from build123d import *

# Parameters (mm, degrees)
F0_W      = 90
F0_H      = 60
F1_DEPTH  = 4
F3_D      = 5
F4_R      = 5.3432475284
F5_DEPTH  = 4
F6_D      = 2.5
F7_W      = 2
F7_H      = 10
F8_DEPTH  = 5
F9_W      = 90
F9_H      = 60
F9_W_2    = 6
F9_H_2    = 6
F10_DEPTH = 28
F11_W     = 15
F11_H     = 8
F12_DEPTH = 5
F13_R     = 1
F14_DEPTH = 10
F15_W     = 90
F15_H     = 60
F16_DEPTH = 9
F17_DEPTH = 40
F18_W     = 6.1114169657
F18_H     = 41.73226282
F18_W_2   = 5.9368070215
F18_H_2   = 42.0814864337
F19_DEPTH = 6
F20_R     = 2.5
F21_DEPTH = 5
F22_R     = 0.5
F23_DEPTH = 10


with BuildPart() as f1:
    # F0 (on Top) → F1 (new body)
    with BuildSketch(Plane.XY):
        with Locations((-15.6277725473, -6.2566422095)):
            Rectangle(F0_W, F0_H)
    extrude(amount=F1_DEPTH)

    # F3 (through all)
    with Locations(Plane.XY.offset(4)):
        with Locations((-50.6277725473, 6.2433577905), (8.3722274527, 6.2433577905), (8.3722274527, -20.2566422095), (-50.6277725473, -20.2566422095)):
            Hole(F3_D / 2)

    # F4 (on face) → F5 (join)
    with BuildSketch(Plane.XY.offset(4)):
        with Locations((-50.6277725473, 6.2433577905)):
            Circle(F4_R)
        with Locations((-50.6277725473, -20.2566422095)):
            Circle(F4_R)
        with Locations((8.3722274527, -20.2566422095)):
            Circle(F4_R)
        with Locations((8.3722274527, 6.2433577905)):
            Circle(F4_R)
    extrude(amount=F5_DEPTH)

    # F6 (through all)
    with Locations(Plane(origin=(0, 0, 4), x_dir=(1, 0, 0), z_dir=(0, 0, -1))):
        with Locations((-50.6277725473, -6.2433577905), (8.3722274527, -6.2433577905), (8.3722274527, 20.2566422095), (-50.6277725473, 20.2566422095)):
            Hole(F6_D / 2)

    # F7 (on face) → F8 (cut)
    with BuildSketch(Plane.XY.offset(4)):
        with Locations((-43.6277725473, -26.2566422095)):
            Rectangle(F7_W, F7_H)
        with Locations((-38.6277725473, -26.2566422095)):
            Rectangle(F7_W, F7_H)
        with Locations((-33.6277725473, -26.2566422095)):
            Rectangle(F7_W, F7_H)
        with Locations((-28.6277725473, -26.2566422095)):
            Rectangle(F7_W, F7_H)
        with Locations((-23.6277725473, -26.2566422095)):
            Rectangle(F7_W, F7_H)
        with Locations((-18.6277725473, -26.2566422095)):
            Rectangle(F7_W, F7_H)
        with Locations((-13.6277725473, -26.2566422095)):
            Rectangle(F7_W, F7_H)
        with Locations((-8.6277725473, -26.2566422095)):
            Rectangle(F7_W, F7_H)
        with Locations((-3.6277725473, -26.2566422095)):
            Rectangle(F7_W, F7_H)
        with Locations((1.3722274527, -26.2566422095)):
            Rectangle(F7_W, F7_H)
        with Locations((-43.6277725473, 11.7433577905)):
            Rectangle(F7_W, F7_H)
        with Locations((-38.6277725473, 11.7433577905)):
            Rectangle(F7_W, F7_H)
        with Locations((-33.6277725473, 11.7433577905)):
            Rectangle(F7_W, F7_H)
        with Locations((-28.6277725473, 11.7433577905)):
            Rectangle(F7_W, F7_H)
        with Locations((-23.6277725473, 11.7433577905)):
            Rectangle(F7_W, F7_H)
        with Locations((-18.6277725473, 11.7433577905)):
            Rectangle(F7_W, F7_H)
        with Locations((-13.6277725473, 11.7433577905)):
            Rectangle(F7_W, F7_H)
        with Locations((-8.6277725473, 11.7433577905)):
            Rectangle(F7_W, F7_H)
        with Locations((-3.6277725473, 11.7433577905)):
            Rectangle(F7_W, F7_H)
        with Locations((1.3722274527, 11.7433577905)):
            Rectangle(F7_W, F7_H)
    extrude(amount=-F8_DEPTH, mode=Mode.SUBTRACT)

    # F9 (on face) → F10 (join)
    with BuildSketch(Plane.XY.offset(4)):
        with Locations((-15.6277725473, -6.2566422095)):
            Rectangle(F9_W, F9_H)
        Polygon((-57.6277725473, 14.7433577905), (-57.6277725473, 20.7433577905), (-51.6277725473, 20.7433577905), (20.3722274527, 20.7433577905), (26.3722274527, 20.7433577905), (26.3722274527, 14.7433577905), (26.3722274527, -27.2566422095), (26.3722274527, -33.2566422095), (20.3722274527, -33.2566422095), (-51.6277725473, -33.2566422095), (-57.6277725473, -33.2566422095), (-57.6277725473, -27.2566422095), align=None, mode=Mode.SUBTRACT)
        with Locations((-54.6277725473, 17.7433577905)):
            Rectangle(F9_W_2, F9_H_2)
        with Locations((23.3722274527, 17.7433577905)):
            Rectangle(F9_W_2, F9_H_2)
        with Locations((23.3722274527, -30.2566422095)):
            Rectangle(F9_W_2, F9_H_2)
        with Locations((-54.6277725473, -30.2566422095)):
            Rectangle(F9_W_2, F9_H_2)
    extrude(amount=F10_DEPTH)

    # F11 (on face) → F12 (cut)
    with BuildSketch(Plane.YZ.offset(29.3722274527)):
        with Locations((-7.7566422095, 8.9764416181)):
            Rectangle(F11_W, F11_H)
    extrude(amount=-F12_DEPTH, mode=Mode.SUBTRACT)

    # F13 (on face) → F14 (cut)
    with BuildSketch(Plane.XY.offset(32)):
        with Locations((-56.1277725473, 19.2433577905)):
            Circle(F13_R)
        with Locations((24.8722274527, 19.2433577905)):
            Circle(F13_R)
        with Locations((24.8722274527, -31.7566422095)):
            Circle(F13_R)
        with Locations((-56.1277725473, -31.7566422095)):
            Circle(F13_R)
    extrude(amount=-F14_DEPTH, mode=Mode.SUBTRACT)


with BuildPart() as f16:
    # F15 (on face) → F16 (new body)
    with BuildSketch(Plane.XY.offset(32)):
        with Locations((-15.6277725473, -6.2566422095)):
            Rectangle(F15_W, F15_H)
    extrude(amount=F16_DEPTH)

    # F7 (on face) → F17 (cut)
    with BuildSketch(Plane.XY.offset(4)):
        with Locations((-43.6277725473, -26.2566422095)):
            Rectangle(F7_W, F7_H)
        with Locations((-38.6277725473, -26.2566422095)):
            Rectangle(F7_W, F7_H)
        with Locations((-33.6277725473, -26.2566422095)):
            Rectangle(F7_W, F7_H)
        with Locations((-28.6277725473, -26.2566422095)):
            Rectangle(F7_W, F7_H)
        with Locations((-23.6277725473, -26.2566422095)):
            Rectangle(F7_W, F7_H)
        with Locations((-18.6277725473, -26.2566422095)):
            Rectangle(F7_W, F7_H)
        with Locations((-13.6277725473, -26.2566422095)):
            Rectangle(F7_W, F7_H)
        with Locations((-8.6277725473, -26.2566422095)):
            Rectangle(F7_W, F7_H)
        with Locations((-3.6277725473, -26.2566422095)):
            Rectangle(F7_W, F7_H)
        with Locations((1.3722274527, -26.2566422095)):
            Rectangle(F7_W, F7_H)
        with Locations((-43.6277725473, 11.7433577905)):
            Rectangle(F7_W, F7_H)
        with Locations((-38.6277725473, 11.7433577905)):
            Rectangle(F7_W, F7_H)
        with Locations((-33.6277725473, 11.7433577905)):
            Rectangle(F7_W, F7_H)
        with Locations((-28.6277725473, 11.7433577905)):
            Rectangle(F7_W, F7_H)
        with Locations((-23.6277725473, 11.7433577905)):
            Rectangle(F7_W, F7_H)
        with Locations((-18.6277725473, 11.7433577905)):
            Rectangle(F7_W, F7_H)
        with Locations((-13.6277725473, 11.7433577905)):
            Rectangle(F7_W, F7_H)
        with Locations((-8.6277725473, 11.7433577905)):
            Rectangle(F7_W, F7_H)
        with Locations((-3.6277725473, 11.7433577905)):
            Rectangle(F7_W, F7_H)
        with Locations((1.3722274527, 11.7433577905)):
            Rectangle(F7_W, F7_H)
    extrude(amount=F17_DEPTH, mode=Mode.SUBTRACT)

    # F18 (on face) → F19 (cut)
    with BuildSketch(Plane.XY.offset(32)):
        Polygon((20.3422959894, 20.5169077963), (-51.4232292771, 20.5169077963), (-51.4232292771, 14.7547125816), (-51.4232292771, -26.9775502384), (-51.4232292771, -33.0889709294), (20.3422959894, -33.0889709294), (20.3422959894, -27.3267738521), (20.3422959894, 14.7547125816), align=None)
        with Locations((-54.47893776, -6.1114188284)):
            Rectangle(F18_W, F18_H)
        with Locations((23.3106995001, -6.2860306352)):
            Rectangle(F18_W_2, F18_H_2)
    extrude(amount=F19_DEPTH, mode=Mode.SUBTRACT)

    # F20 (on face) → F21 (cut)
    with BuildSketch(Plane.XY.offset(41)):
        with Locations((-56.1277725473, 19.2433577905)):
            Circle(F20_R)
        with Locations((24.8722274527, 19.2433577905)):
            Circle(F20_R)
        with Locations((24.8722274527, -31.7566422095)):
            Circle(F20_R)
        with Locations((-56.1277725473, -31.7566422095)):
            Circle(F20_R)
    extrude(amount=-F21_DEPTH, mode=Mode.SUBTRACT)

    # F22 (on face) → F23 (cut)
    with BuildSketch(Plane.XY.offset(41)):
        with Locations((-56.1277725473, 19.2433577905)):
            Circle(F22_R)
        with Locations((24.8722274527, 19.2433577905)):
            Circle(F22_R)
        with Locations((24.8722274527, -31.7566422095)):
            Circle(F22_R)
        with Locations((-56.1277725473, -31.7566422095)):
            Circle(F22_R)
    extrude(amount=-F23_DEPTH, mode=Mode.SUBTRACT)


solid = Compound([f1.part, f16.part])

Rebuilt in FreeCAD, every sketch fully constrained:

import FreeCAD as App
import Part
import Sketcher
from FreeCAD import Vector


def add_polygon(sketch, points):
    """Adds a closed chain of lines whose ends are joined by coincident constraints."""
    first, n = sketch.GeometryCount, len(points)
    for a, b in zip(points, points[1:] + points[:1]):
        sketch.addGeometry(Part.LineSegment(App.Vector(*a, 0), App.Vector(*b, 0)), False)
    for i in range(n):
        sketch.addConstraint(Sketcher.Constraint("Coincident", first + i, 2, first + (i + 1) % n, 1))

doc = App.newDocument("Part")
body = doc.addObject("PartDesign::Body", "Body")

# Sketch on XY plane
sketch1 = body.newObject("Sketcher::SketchObject", "Sketch")
sketch1.AttachmentSupport = (doc.getObject("XY_Plane"), [""])
sketch1.MapMode = "FlatFace"
add_polygon(sketch1, [(-61, 24), (-61, -36), (29, -36), (29, 24)])  # lines 0-3
sketch1.addConstraint(Sketcher.Constraint("Vertical", 0))
sketch1.addConstraint(Sketcher.Constraint("Horizontal", 1))
sketch1.addConstraint(Sketcher.Constraint("Vertical", 2))
sketch1.addConstraint(Sketcher.Constraint("Horizontal", 3))
sketch1.addConstraint(Sketcher.Constraint("DistanceX", 1, 1, 1, 2, 90.0))
sketch1.addConstraint(Sketcher.Constraint("DistanceY", 0, 2, 0, 1, 60.0))
sketch1.addConstraint(Sketcher.Constraint("DistanceX", 0, 2, -1, 1, 60.627773))
sketch1.addConstraint(Sketcher.Constraint("DistanceY", 0, 2, -1, 1, 36.256642))
pad1 = body.newObject("PartDesign::Pad", "Pad")
pad1.Profile = sketch1
pad1.Length = 4

# Sketch on XY plane
sketch2 = body.newObject("Sketcher::SketchObject", "Sketch001")
sketch2.AttachmentSupport = (doc.getObject("XY_Plane"), [""])
sketch2.MapMode = "FlatFace"
sketch2.AttachmentOffset = App.Placement(Vector(0, 0, 4), App.Rotation())
sketch2.addGeometry(Part.Circle(Vector(-50.6, 6.2, 0), Vector(0, 0, 1), 2.5), False)
sketch2.addGeometry(Part.Circle(Vector(8.4, 6.2, 0), Vector(0, 0, 1), 2.5), False)
sketch2.addGeometry(Part.Circle(Vector(8.4, -20.3, 0), Vector(0, 0, 1), 2.5), False)
sketch2.addGeometry(Part.Circle(Vector(-50.6, -20.3, 0), Vector(0, 0, 1), 2.5), False)
sketch2.addConstraint(Sketcher.Constraint("Equal", 0, 1))
sketch2.addConstraint(Sketcher.Constraint("Equal", 1, 2))
sketch2.addConstraint(Sketcher.Constraint("Equal", 2, 3))
sketch2.addConstraint(Sketcher.Constraint("Horizontal", 0, 3, 1, 3))
sketch2.addConstraint(Sketcher.Constraint("Horizontal", 2, 3, 3, 3))
sketch2.addConstraint(Sketcher.Constraint("Vertical", 1, 3, 2, 3))
sketch2.addConstraint(Sketcher.Constraint("Vertical", 0, 3, 3, 3))
sketch2.addConstraint(Sketcher.Constraint("Diameter", 0, 5.0))
sketch2.addConstraint(Sketcher.Constraint("DistanceX", 0, 3, 1, 3, 59.0))
sketch2.addConstraint(Sketcher.Constraint("DistanceY", 2, 3, 1, 3, 26.5))
sketch2.addConstraint(Sketcher.Constraint("DistanceX", 0, 3, -1, 1, 50.627773))
sketch2.addConstraint(Sketcher.Constraint("DistanceY", -1, 1, 0, 3, 6.243358))
doc.recompute()
hole = body.newObject("PartDesign::Hole", "Hole")
hole.Profile = sketch2
hole.ThreadType = "None"
hole.Diameter = 5
hole.DepthType = "ThroughAll"

# Sketch on XY plane
sketch3 = body.newObject("Sketcher::SketchObject", "Sketch002")
sketch3.AttachmentSupport = (doc.getObject("XY_Plane"), [""])
sketch3.MapMode = "FlatFace"
sketch3.AttachmentOffset = App.Placement(Vector(0, 0, 4), App.Rotation())
sketch3.addGeometry(Part.Circle(Vector(-51, 6, 0), Vector(0, 0, 1), 5), False)
sketch3.addGeometry(Part.Circle(Vector(-51, -20, 0), Vector(0, 0, 1), 5), False)
sketch3.addGeometry(Part.Circle(Vector(8, -20, 0), Vector(0, 0, 1), 5), False)
sketch3.addGeometry(Part.Circle(Vector(8, 6, 0), Vector(0, 0, 1), 5), False)
sketch3.addConstraint(Sketcher.Constraint("Equal", 0, 1))
sketch3.addConstraint(Sketcher.Constraint("Equal", 1, 2))
sketch3.addConstraint(Sketcher.Constraint("Equal", 2, 3))
sketch3.addConstraint(Sketcher.Constraint("Horizontal", 1, 3, 2, 3))
sketch3.addConstraint(Sketcher.Constraint("Horizontal", 0, 3, 3, 3))
sketch3.addConstraint(Sketcher.Constraint("Vertical", 0, 3, 1, 3))
sketch3.addConstraint(Sketcher.Constraint("Vertical", 2, 3, 3, 3))
sketch3.addConstraint(Sketcher.Constraint("DistanceX", 1, 3, 2, 3, 59.0))
sketch3.addConstraint(Sketcher.Constraint("DistanceY", 1, 3, 0, 3, 26.5))
sketch3.addConstraint(Sketcher.Constraint("Diameter", 0, 10.686495))
sketch3.addConstraint(Sketcher.Constraint("DistanceX", 0, 3, -1, 1, 50.627773))
sketch3.addConstraint(Sketcher.Constraint("DistanceY", -1, 1, 0, 3, 6.243358))
pad2 = body.newObject("PartDesign::Pad", "Pad001")
pad2.Profile = sketch3
pad2.Length = 4

# Sketch on XY plane
sketch4 = body.newObject("Sketcher::SketchObject", "Sketch003")
sketch4.AttachmentSupport = (doc.getObject("XY_Plane"), [""])
sketch4.MapMode = "FlatFace"
sketch4.AttachmentOffset = App.Placement(Vector(0, 0, 4), App.Rotation())
sketch4.addGeometry(Part.Circle(Vector(-50.6, 6.2, 0), Vector(0, 0, 1), 1.2), False)
sketch4.addGeometry(Part.Circle(Vector(8.4, 6.2, 0), Vector(0, 0, 1), 1.2), False)
sketch4.addGeometry(Part.Circle(Vector(8.4, -20.3, 0), Vector(0, 0, 1), 1.2), False)
sketch4.addGeometry(Part.Circle(Vector(-50.6, -20.3, 0), Vector(0, 0, 1), 1.2), False)
sketch4.addConstraint(Sketcher.Constraint("Equal", 0, 1))
sketch4.addConstraint(Sketcher.Constraint("Equal", 1, 2))
sketch4.addConstraint(Sketcher.Constraint("Equal", 2, 3))
sketch4.addConstraint(Sketcher.Constraint("Horizontal", 0, 3, 1, 3))
sketch4.addConstraint(Sketcher.Constraint("Horizontal", 2, 3, 3, 3))
sketch4.addConstraint(Sketcher.Constraint("Vertical", 1, 3, 2, 3))
sketch4.addConstraint(Sketcher.Constraint("Vertical", 0, 3, 3, 3))
sketch4.addConstraint(Sketcher.Constraint("Diameter", 0, 2.5))
sketch4.addConstraint(Sketcher.Constraint("DistanceX", 0, 3, 1, 3, 59.0))
sketch4.addConstraint(Sketcher.Constraint("DistanceY", 2, 3, 1, 3, 26.5))
sketch4.addConstraint(Sketcher.Constraint("DistanceX", 0, 3, -1, 1, 50.627773))
sketch4.addConstraint(Sketcher.Constraint("DistanceY", -1, 1, 0, 3, 6.243358))
doc.recompute()
hole2 = body.newObject("PartDesign::Hole", "Hole001")
hole2.Profile = sketch4
hole2.ThreadType = "None"
hole2.Diameter = 2.5
hole2.DepthType = "ThroughAll"
hole2.Reversed = True

# Sketch on XY plane
sketch5 = body.newObject("Sketcher::SketchObject", "Sketch004")
sketch5.AttachmentSupport = (doc.getObject("XY_Plane"), [""])
sketch5.MapMode = "FlatFace"
sketch5.AttachmentOffset = App.Placement(Vector(0, 0, 4), App.Rotation())
add_polygon(sketch5, [(-44.6, -21.3), (-44.6, -31.3), (-42.6, -31.3), (-42.6, -21.3)])  # lines 0-3
add_polygon(sketch5, [(-39.6, -21.3), (-39.6, -31.3), (-37.6, -31.3), (-37.6, -21.3)])  # lines 4-7
add_polygon(sketch5, [(-34.6, -21.3), (-34.6, -31.3), (-32.6, -31.3), (-32.6, -21.3)])  # lines 8-11
add_polygon(sketch5, [(-29.6, -21.3), (-29.6, -31.3), (-27.6, -31.3), (-27.6, -21.3)])  # lines 12-15
add_polygon(sketch5, [(-24.6, -21.3), (-24.6, -31.3), (-22.6, -31.3), (-22.6, -21.3)])  # lines 16-19
add_polygon(sketch5, [(-19.6, -21.3), (-19.6, -31.3), (-17.6, -31.3), (-17.6, -21.3)])  # lines 20-23
add_polygon(sketch5, [(-14.6, -21.3), (-14.6, -31.3), (-12.6, -31.3), (-12.6, -21.3)])  # lines 24-27
add_polygon(sketch5, [(-9.6, -21.3), (-9.6, -31.3), (-7.6, -31.3), (-7.6, -21.3)])  # lines 28-31
add_polygon(sketch5, [(-4.6, -21.3), (-4.6, -31.3), (-2.6, -31.3), (-2.6, -21.3)])  # lines 32-35
add_polygon(sketch5, [(0.4, -21.3), (0.4, -31.3), (2.4, -31.3), (2.4, -21.3)])  # lines 36-39
add_polygon(sketch5, [(-44.6, 16.7), (-44.6, 6.7), (-42.6, 6.7), (-42.6, 16.7)])  # lines 40-43
add_polygon(sketch5, [(-39.6, 16.7), (-39.6, 6.7), (-37.6, 6.7), (-37.6, 16.7)])  # lines 44-47
add_polygon(sketch5, [(-34.6, 16.7), (-34.6, 6.7), (-32.6, 6.7), (-32.6, 16.7)])  # lines 48-51
add_polygon(sketch5, [(-29.6, 16.7), (-29.6, 6.7), (-27.6, 6.7), (-27.6, 16.7)])  # lines 52-55
add_polygon(sketch5, [(-24.6, 16.7), (-24.6, 6.7), (-22.6, 6.7), (-22.6, 16.7)])  # lines 56-59
add_polygon(sketch5, [(-19.6, 16.7), (-19.6, 6.7), (-17.6, 6.7), (-17.6, 16.7)])  # lines 60-63
add_polygon(sketch5, [(-14.6, 16.7), (-14.6, 6.7), (-12.6, 6.7), (-12.6, 16.7)])  # lines 64-67
add_polygon(sketch5, [(-9.6, 16.7), (-9.6, 6.7), (-7.6, 6.7), (-7.6, 16.7)])  # lines 68-71
add_polygon(sketch5, [(-4.6, 16.7), (-4.6, 6.7), (-2.6, 6.7), (-2.6, 16.7)])  # lines 72-75
add_polygon(sketch5, [(0.4, 16.7), (0.4, 6.7), (2.4, 6.7), (2.4, 16.7)])  # lines 76-79
sketch5.addConstraint(Sketcher.Constraint("Vertical", 0))
sketch5.addConstraint(Sketcher.Constraint("Horizontal", 1))
sketch5.addConstraint(Sketcher.Constraint("Vertical", 2))
sketch5.addConstraint(Sketcher.Constraint("Horizontal", 3))
sketch5.addConstraint(Sketcher.Constraint("Vertical", 4))
sketch5.addConstraint(Sketcher.Constraint("Horizontal", 5))
sketch5.addConstraint(Sketcher.Constraint("Vertical", 6))
sketch5.addConstraint(Sketcher.Constraint("Horizontal", 7))
sketch5.addConstraint(Sketcher.Constraint("Vertical", 8))
sketch5.addConstraint(Sketcher.Constraint("Horizontal", 9))
sketch5.addConstraint(Sketcher.Constraint("Vertical", 10))
sketch5.addConstraint(Sketcher.Constraint("Horizontal", 11))
sketch5.addConstraint(Sketcher.Constraint("Vertical", 12))
sketch5.addConstraint(Sketcher.Constraint("Horizontal", 13))
sketch5.addConstraint(Sketcher.Constraint("Vertical", 14))
sketch5.addConstraint(Sketcher.Constraint("Horizontal", 15))
sketch5.addConstraint(Sketcher.Constraint("Vertical", 16))
sketch5.addConstraint(Sketcher.Constraint("Horizontal", 17))
sketch5.addConstraint(Sketcher.Constraint("Vertical", 18))
sketch5.addConstraint(Sketcher.Constraint("Horizontal", 19))
sketch5.addConstraint(Sketcher.Constraint("Vertical", 20))
sketch5.addConstraint(Sketcher.Constraint("Horizontal", 21))
sketch5.addConstraint(Sketcher.Constraint("Vertical", 22))
sketch5.addConstraint(Sketcher.Constraint("Horizontal", 23))
sketch5.addConstraint(Sketcher.Constraint("Vertical", 24))
sketch5.addConstraint(Sketcher.Constraint("Horizontal", 25))
sketch5.addConstraint(Sketcher.Constraint("Vertical", 26))
sketch5.addConstraint(Sketcher.Constraint("Horizontal", 27))
sketch5.addConstraint(Sketcher.Constraint("Vertical", 28))
sketch5.addConstraint(Sketcher.Constraint("Horizontal", 29))
sketch5.addConstraint(Sketcher.Constraint("Vertical", 30))
sketch5.addConstraint(Sketcher.Constraint("Horizontal", 31))
sketch5.addConstraint(Sketcher.Constraint("Vertical", 32))
sketch5.addConstraint(Sketcher.Constraint("Horizontal", 33))
sketch5.addConstraint(Sketcher.Constraint("Vertical", 34))
sketch5.addConstraint(Sketcher.Constraint("Horizontal", 35))
sketch5.addConstraint(Sketcher.Constraint("Vertical", 36))
sketch5.addConstraint(Sketcher.Constraint("Horizontal", 37))
sketch5.addConstraint(Sketcher.Constraint("Vertical", 38))
sketch5.addConstraint(Sketcher.Constraint("Horizontal", 39))
sketch5.addConstraint(Sketcher.Constraint("Vertical", 40))
sketch5.addConstraint(Sketcher.Constraint("Horizontal", 41))
sketch5.addConstraint(Sketcher.Constraint("Vertical", 42))
sketch5.addConstraint(Sketcher.Constraint("Horizontal", 43))
sketch5.addConstraint(Sketcher.Constraint("Vertical", 44))
sketch5.addConstraint(Sketcher.Constraint("Horizontal", 45))
sketch5.addConstraint(Sketcher.Constraint("Vertical", 46))
sketch5.addConstraint(Sketcher.Constraint("Horizontal", 47))
sketch5.addConstraint(Sketcher.Constraint("Vertical", 48))
sketch5.addConstraint(Sketcher.Constraint("Horizontal", 49))
sketch5.addConstraint(Sketcher.Constraint("Vertical", 50))
sketch5.addConstraint(Sketcher.Constraint("Horizontal", 51))
sketch5.addConstraint(Sketcher.Constraint("Vertical", 52))
sketch5.addConstraint(Sketcher.Constraint("Horizontal", 53))
sketch5.addConstraint(Sketcher.Constraint("Vertical", 54))
sketch5.addConstraint(Sketcher.Constraint("Horizontal", 55))
sketch5.addConstraint(Sketcher.Constraint("Vertical", 56))
sketch5.addConstraint(Sketcher.Constraint("Horizontal", 57))
sketch5.addConstraint(Sketcher.Constraint("Vertical", 58))
sketch5.addConstraint(Sketcher.Constraint("Horizontal", 59))
sketch5.addConstraint(Sketcher.Constraint("Vertical", 60))
sketch5.addConstraint(Sketcher.Constraint("Horizontal", 61))
sketch5.addConstraint(Sketcher.Constraint("Vertical", 62))
sketch5.addConstraint(Sketcher.Constraint("Horizontal", 63))
sketch5.addConstraint(Sketcher.Constraint("Vertical", 64))
sketch5.addConstraint(Sketcher.Constraint("Horizontal", 65))
sketch5.addConstraint(Sketcher.Constraint("Vertical", 66))
sketch5.addConstraint(Sketcher.Constraint("Horizontal", 67))
sketch5.addConstraint(Sketcher.Constraint("Vertical", 68))
sketch5.addConstraint(Sketcher.Constraint("Horizontal", 69))
sketch5.addConstraint(Sketcher.Constraint("Vertical", 70))
sketch5.addConstraint(Sketcher.Constraint("Horizontal", 71))
sketch5.addConstraint(Sketcher.Constraint("Vertical", 72))
sketch5.addConstraint(Sketcher.Constraint("Horizontal", 73))
sketch5.addConstraint(Sketcher.Constraint("Vertical", 74))
sketch5.addConstraint(Sketcher.Constraint("Horizontal", 75))
sketch5.addConstraint(Sketcher.Constraint("Vertical", 76))
sketch5.addConstraint(Sketcher.Constraint("Horizontal", 77))
sketch5.addConstraint(Sketcher.Constraint("Vertical", 78))
sketch5.addConstraint(Sketcher.Constraint("Horizontal", 79))
sketch5.addConstraint(Sketcher.Constraint("Horizontal", 1, 2, 4, 2))
sketch5.addConstraint(Sketcher.Constraint("Horizontal", 3, 2, 6, 2))
sketch5.addConstraint(Sketcher.Constraint("Horizontal", 5, 2, 8, 2))
sketch5.addConstraint(Sketcher.Constraint("Horizontal", 7, 2, 10, 2))
sketch5.addConstraint(Sketcher.Constraint("Horizontal", 9, 2, 12, 2))
sketch5.addConstraint(Sketcher.Constraint("Horizontal", 11, 2, 14, 2))
sketch5.addConstraint(Sketcher.Constraint("Horizontal", 13, 2, 16, 2))
sketch5.addConstraint(Sketcher.Constraint("Horizontal", 15, 2, 18, 2))
sketch5.addConstraint(Sketcher.Constraint("Horizontal", 17, 2, 20, 2))
sketch5.addConstraint(Sketcher.Constraint("Horizontal", 19, 2, 22, 2))
sketch5.addConstraint(Sketcher.Constraint("Horizontal", 21, 2, 24, 2))
sketch5.addConstraint(Sketcher.Constraint("Horizontal", 23, 2, 26, 2))
sketch5.addConstraint(Sketcher.Constraint("Horizontal", 25, 2, 28, 2))
sketch5.addConstraint(Sketcher.Constraint("Horizontal", 27, 2, 30, 2))
sketch5.addConstraint(Sketcher.Constraint("Horizontal", 29, 2, 32, 2))
sketch5.addConstraint(Sketcher.Constraint("Horizontal", 31, 2, 34, 2))
sketch5.addConstraint(Sketcher.Constraint("Horizontal", 33, 2, 36, 2))
sketch5.addConstraint(Sketcher.Constraint("Horizontal", 35, 2, 38, 2))
sketch5.addConstraint(Sketcher.Constraint("Horizontal", 41, 2, 44, 2))
sketch5.addConstraint(Sketcher.Constraint("Horizontal", 43, 2, 46, 2))
sketch5.addConstraint(Sketcher.Constraint("Horizontal", 45, 2, 48, 2))
sketch5.addConstraint(Sketcher.Constraint("Horizontal", 47, 2, 50, 2))
sketch5.addConstraint(Sketcher.Constraint("Horizontal", 49, 2, 52, 2))
sketch5.addConstraint(Sketcher.Constraint("Horizontal", 51, 2, 54, 2))
sketch5.addConstraint(Sketcher.Constraint("Horizontal", 53, 2, 56, 2))
sketch5.addConstraint(Sketcher.Constraint("Horizontal", 55, 2, 58, 2))
sketch5.addConstraint(Sketcher.Constraint("Horizontal", 57, 2, 60, 2))
sketch5.addConstraint(Sketcher.Constraint("Horizontal", 59, 2, 62, 2))
sketch5.addConstraint(Sketcher.Constraint("Horizontal", 61, 2, 64, 2))
sketch5.addConstraint(Sketcher.Constraint("Horizontal", 63, 2, 66, 2))
sketch5.addConstraint(Sketcher.Constraint("Horizontal", 65, 2, 68, 2))
sketch5.addConstraint(Sketcher.Constraint("Horizontal", 67, 2, 70, 2))
sketch5.addConstraint(Sketcher.Constraint("Horizontal", 69, 2, 72, 2))
sketch5.addConstraint(Sketcher.Constraint("Horizontal", 71, 2, 74, 2))
sketch5.addConstraint(Sketcher.Constraint("Horizontal", 73, 2, 76, 2))
sketch5.addConstraint(Sketcher.Constraint("Horizontal", 75, 2, 78, 2))
sketch5.addConstraint(Sketcher.Constraint("Vertical", 3, 2, 40, 2))
sketch5.addConstraint(Sketcher.Constraint("Vertical", 2, 2, 41, 2))
sketch5.addConstraint(Sketcher.Constraint("Vertical", 7, 2, 44, 2))
sketch5.addConstraint(Sketcher.Constraint("Vertical", 6, 2, 45, 2))
sketch5.addConstraint(Sketcher.Constraint("Vertical", 11, 2, 48, 2))
sketch5.addConstraint(Sketcher.Constraint("Vertical", 10, 2, 49, 2))
sketch5.addConstraint(Sketcher.Constraint("Vertical", 15, 2, 52, 2))
sketch5.addConstraint(Sketcher.Constraint("Vertical", 14, 2, 53, 2))
sketch5.addConstraint(Sketcher.Constraint("Vertical", 19, 2, 56, 2))
sketch5.addConstraint(Sketcher.Constraint("Vertical", 18, 2, 57, 2))
sketch5.addConstraint(Sketcher.Constraint("Vertical", 23, 2, 60, 2))
sketch5.addConstraint(Sketcher.Constraint("Vertical", 22, 2, 61, 2))
sketch5.addConstraint(Sketcher.Constraint("Vertical", 27, 2, 64, 2))
sketch5.addConstraint(Sketcher.Constraint("Vertical", 26, 2, 65, 2))
sketch5.addConstraint(Sketcher.Constraint("Vertical", 31, 2, 68, 2))
sketch5.addConstraint(Sketcher.Constraint("Vertical", 30, 2, 69, 2))
sketch5.addConstraint(Sketcher.Constraint("Vertical", 35, 2, 72, 2))
sketch5.addConstraint(Sketcher.Constraint("Vertical", 34, 2, 73, 2))
sketch5.addConstraint(Sketcher.Constraint("Vertical", 39, 2, 76, 2))
sketch5.addConstraint(Sketcher.Constraint("Vertical", 38, 2, 77, 2))
sketch5.addConstraint(Sketcher.Constraint("Equal", 3, 5))
sketch5.addConstraint(Sketcher.Constraint("Equal", 7, 9))
sketch5.addConstraint(Sketcher.Constraint("Equal", 11, 13))
sketch5.addConstraint(Sketcher.Constraint("Equal", 15, 17))
sketch5.addConstraint(Sketcher.Constraint("Equal", 19, 21))
sketch5.addConstraint(Sketcher.Constraint("Equal", 23, 25))
sketch5.addConstraint(Sketcher.Constraint("Equal", 27, 29))
sketch5.addConstraint(Sketcher.Constraint("Equal", 31, 33))
sketch5.addConstraint(Sketcher.Constraint("Equal", 35, 37))
sketch5.addConstraint(Sketcher.Constraint("Equal", 38, 40))
sketch5.addConstraint(Sketcher.Constraint("DistanceX", 1, 1, 1, 2, 2.0))
sketch5.addConstraint(Sketcher.Constraint("DistanceY", 0, 2, 0, 1, 10.0))
sketch5.addConstraint(Sketcher.Constraint("DistanceX", 0, 2, -1, 1, 44.627773))
sketch5.addConstraint(Sketcher.Constraint("DistanceY", 0, 2, -1, 1, 31.256642))
sketch5.addConstraint(Sketcher.Constraint("DistanceX", 4, 2, -1, 1, 39.627773))
sketch5.addConstraint(Sketcher.Constraint("DistanceX", 8, 2, -1, 1, 34.627773))
sketch5.addConstraint(Sketcher.Constraint("DistanceX", 12, 2, -1, 1, 29.627773))
sketch5.addConstraint(Sketcher.Constraint("DistanceX", 16, 2, -1, 1, 24.627773))
sketch5.addConstraint(Sketcher.Constraint("DistanceX", 20, 2, -1, 1, 19.627773))
sketch5.addConstraint(Sketcher.Constraint("DistanceX", 24, 2, -1, 1, 14.627773))
sketch5.addConstraint(Sketcher.Constraint("DistanceX", 28, 2, -1, 1, 9.627773))
sketch5.addConstraint(Sketcher.Constraint("DistanceX", 32, 2, -1, 1, 4.627773))
sketch5.addConstraint(Sketcher.Constraint("DistanceX", -1, 1, 36, 2, 0.372227))
sketch5.addConstraint(Sketcher.Constraint("DistanceY", -1, 1, 40, 2, 6.743358))
pocket1 = body.newObject("PartDesign::Pocket", "Pocket")
pocket1.Profile = sketch5
pocket1.Length = 5

# Sketch on XY plane
sketch6 = body.newObject("Sketcher::SketchObject", "Sketch005")
sketch6.AttachmentSupport = (doc.getObject("XY_Plane"), [""])
sketch6.MapMode = "FlatFace"
sketch6.AttachmentOffset = App.Placement(Vector(0, 0, 4), App.Rotation())
add_polygon(sketch6, [(-61, 24), (-61, -36), (29, -36), (29, 24)])  # lines 0-3
add_polygon(sketch6, [(-58, -27), (-58, 15), (-52, 15), (-52, 21), (20, 21), (20, 15), (26, 15), (26, -27), (20, -27), (20, -33), (-52, -33), (-52, -27)])  # lines 4-15
sketch6.addConstraint(Sketcher.Constraint("Vertical", 0))
sketch6.addConstraint(Sketcher.Constraint("Horizontal", 1))
sketch6.addConstraint(Sketcher.Constraint("Vertical", 2))
sketch6.addConstraint(Sketcher.Constraint("Horizontal", 3))
sketch6.addConstraint(Sketcher.Constraint("Vertical", 4))
sketch6.addConstraint(Sketcher.Constraint("Horizontal", 5))
sketch6.addConstraint(Sketcher.Constraint("Vertical", 6))
sketch6.addConstraint(Sketcher.Constraint("Horizontal", 7))
sketch6.addConstraint(Sketcher.Constraint("Vertical", 8))
sketch6.addConstraint(Sketcher.Constraint("Horizontal", 9))
sketch6.addConstraint(Sketcher.Constraint("Vertical", 10))
sketch6.addConstraint(Sketcher.Constraint("Horizontal", 11))
sketch6.addConstraint(Sketcher.Constraint("Vertical", 12))
sketch6.addConstraint(Sketcher.Constraint("Horizontal", 13))
sketch6.addConstraint(Sketcher.Constraint("Vertical", 14))
sketch6.addConstraint(Sketcher.Constraint("Horizontal", 15))
sketch6.addConstraint(Sketcher.Constraint("Horizontal", 5, 2, 8, 2))
sketch6.addConstraint(Sketcher.Constraint("Horizontal", 11, 2, 14, 2))
sketch6.addConstraint(Sketcher.Constraint("Vertical", 8, 2, 11, 2))
sketch6.addConstraint(Sketcher.Constraint("Vertical", 6, 2, 13, 2))
sketch6.addConstraint(Sketcher.Constraint("Equal", 5, 9))
sketch6.addConstraint(Sketcher.Constraint("Equal", 15, 6))
sketch6.addConstraint(Sketcher.Constraint("Equal", 8, 12))
sketch6.addConstraint(Sketcher.Constraint("DistanceX", 1, 1, 1, 2, 90.0))
sketch6.addConstraint(Sketcher.Constraint("DistanceX", 5, 1, 5, 2, 6.0))
sketch6.addConstraint(Sketcher.Constraint("DistanceX", 7, 1, 7, 2, 72.0))
sketch6.addConstraint(Sketcher.Constraint("DistanceY", 0, 2, 0, 1, 60.0))
sketch6.addConstraint(Sketcher.Constraint("DistanceY", 4, 1, 4, 2, 42.0))
sketch6.addConstraint(Sketcher.Constraint("DistanceX", 3, 2, 4, 2, 3.0))
sketch6.addConstraint(Sketcher.Constraint("DistanceY", 4, 2, 3, 2, 9.0))
sketch6.addConstraint(Sketcher.Constraint("DistanceX", 0, 2, -1, 1, 60.627773))
sketch6.addConstraint(Sketcher.Constraint("DistanceY", 0, 2, -1, 1, 36.256642))
pad3 = body.newObject("PartDesign::Pad", "Pad002")
pad3.Profile = sketch6
pad3.Length = 28

# Sketch on YZ plane
sketch7 = body.newObject("Sketcher::SketchObject", "Sketch006")
sketch7.AttachmentSupport = (doc.getObject("YZ_Plane"), [""])
sketch7.MapMode = "FlatFace"
sketch7.AttachmentOffset = App.Placement(Vector(0, 0, 29.372227), App.Rotation())
add_polygon(sketch7, [(-15, 13), (-15, 5), (0, 5), (0, 13)])  # lines 0-3
sketch7.addConstraint(Sketcher.Constraint("Vertical", 0))
sketch7.addConstraint(Sketcher.Constraint("Horizontal", 1))
sketch7.addConstraint(Sketcher.Constraint("Vertical", 2))
sketch7.addConstraint(Sketcher.Constraint("Horizontal", 3))
sketch7.addConstraint(Sketcher.Constraint("DistanceX", 1, 1, 1, 2, 15.0))
sketch7.addConstraint(Sketcher.Constraint("DistanceY", 0, 2, 0, 1, 8.0))
sketch7.addConstraint(Sketcher.Constraint("DistanceY", -1, 1, 0, 2, 4.976442))
sketch7.addConstraint(Sketcher.Constraint("DistanceX", 0, 2, -1, 1, 15.256642))
pocket2 = body.newObject("PartDesign::Pocket", "Pocket001")
pocket2.Profile = sketch7
pocket2.Length = 5

# Sketch on XY plane
sketch8 = body.newObject("Sketcher::SketchObject", "Sketch007")
sketch8.AttachmentSupport = (doc.getObject("XY_Plane"), [""])
sketch8.MapMode = "FlatFace"
sketch8.AttachmentOffset = App.Placement(Vector(0, 0, 32), App.Rotation())
sketch8.addGeometry(Part.Circle(Vector(-56.1, 19.2, 0), Vector(0, 0, 1), 1), False)
sketch8.addGeometry(Part.Circle(Vector(24.9, 19.2, 0), Vector(0, 0, 1), 1), False)
sketch8.addGeometry(Part.Circle(Vector(24.9, -31.8, 0), Vector(0, 0, 1), 1), False)
sketch8.addGeometry(Part.Circle(Vector(-56.1, -31.8, 0), Vector(0, 0, 1), 1), False)
sketch8.addConstraint(Sketcher.Constraint("Equal", 0, 1))
sketch8.addConstraint(Sketcher.Constraint("Equal", 1, 2))
sketch8.addConstraint(Sketcher.Constraint("Equal", 2, 3))
sketch8.addConstraint(Sketcher.Constraint("Horizontal", 0, 3, 1, 3))
sketch8.addConstraint(Sketcher.Constraint("Horizontal", 2, 3, 3, 3))
sketch8.addConstraint(Sketcher.Constraint("Vertical", 1, 3, 2, 3))
sketch8.addConstraint(Sketcher.Constraint("Vertical", 0, 3, 3, 3))
sketch8.addConstraint(Sketcher.Constraint("Diameter", 0, 2.0))
sketch8.addConstraint(Sketcher.Constraint("DistanceX", 0, 3, 1, 3, 81.0))
sketch8.addConstraint(Sketcher.Constraint("DistanceY", 2, 3, 1, 3, 51.0))
sketch8.addConstraint(Sketcher.Constraint("DistanceX", 0, 3, -1, 1, 56.127773))
sketch8.addConstraint(Sketcher.Constraint("DistanceY", -1, 1, 0, 3, 19.243358))
pocket3 = body.newObject("PartDesign::Pocket", "Pocket002")
pocket3.Profile = sketch8
pocket3.Length = 10
body2 = doc.addObject("PartDesign::Body", "Body001")

# Sketch on XY plane
sketch9 = body2.newObject("Sketcher::SketchObject", "Sketch008")
sketch9.AttachmentSupport = (doc.getObject("XY_Plane001"), [""])
sketch9.MapMode = "FlatFace"
sketch9.AttachmentOffset = App.Placement(Vector(0, 0, 32), App.Rotation())
add_polygon(sketch9, [(-61, 24), (-61, -36), (29, -36), (29, 24)])  # lines 0-3
sketch9.addConstraint(Sketcher.Constraint("Vertical", 0))
sketch9.addConstraint(Sketcher.Constraint("Horizontal", 1))
sketch9.addConstraint(Sketcher.Constraint("Vertical", 2))
sketch9.addConstraint(Sketcher.Constraint("Horizontal", 3))
sketch9.addConstraint(Sketcher.Constraint("DistanceX", 1, 1, 1, 2, 90.0))
sketch9.addConstraint(Sketcher.Constraint("DistanceY", 0, 2, 0, 1, 60.0))
sketch9.addConstraint(Sketcher.Constraint("DistanceX", 0, 2, -1, 1, 60.627773))
sketch9.addConstraint(Sketcher.Constraint("DistanceY", 0, 2, -1, 1, 36.256642))
pad4 = body2.newObject("PartDesign::Pad", "Pad003")
pad4.Profile = sketch9
pad4.Length = 9

# Sketch on XY plane
sketch10 = body2.newObject("Sketcher::SketchObject", "Sketch009")
sketch10.AttachmentSupport = (doc.getObject("XY_Plane001"), [""])
sketch10.MapMode = "FlatFace"
sketch10.AttachmentOffset = App.Placement(Vector(0, 0, 4), App.Rotation())
add_polygon(sketch10, [(-44.6, -21.3), (-44.6, -31.3), (-42.6, -31.3), (-42.6, -21.3)])  # lines 0-3
add_polygon(sketch10, [(-39.6, -21.3), (-39.6, -31.3), (-37.6, -31.3), (-37.6, -21.3)])  # lines 4-7
add_polygon(sketch10, [(-34.6, -21.3), (-34.6, -31.3), (-32.6, -31.3), (-32.6, -21.3)])  # lines 8-11
add_polygon(sketch10, [(-29.6, -21.3), (-29.6, -31.3), (-27.6, -31.3), (-27.6, -21.3)])  # lines 12-15
add_polygon(sketch10, [(-24.6, -21.3), (-24.6, -31.3), (-22.6, -31.3), (-22.6, -21.3)])  # lines 16-19
add_polygon(sketch10, [(-19.6, -21.3), (-19.6, -31.3), (-17.6, -31.3), (-17.6, -21.3)])  # lines 20-23
add_polygon(sketch10, [(-14.6, -21.3), (-14.6, -31.3), (-12.6, -31.3), (-12.6, -21.3)])  # lines 24-27
add_polygon(sketch10, [(-9.6, -21.3), (-9.6, -31.3), (-7.6, -31.3), (-7.6, -21.3)])  # lines 28-31
add_polygon(sketch10, [(-4.6, -21.3), (-4.6, -31.3), (-2.6, -31.3), (-2.6, -21.3)])  # lines 32-35
add_polygon(sketch10, [(0.4, -21.3), (0.4, -31.3), (2.4, -31.3), (2.4, -21.3)])  # lines 36-39
add_polygon(sketch10, [(-44.6, 16.7), (-44.6, 6.7), (-42.6, 6.7), (-42.6, 16.7)])  # lines 40-43
add_polygon(sketch10, [(-39.6, 16.7), (-39.6, 6.7), (-37.6, 6.7), (-37.6, 16.7)])  # lines 44-47
add_polygon(sketch10, [(-34.6, 16.7), (-34.6, 6.7), (-32.6, 6.7), (-32.6, 16.7)])  # lines 48-51
add_polygon(sketch10, [(-29.6, 16.7), (-29.6, 6.7), (-27.6, 6.7), (-27.6, 16.7)])  # lines 52-55
add_polygon(sketch10, [(-24.6, 16.7), (-24.6, 6.7), (-22.6, 6.7), (-22.6, 16.7)])  # lines 56-59
add_polygon(sketch10, [(-19.6, 16.7), (-19.6, 6.7), (-17.6, 6.7), (-17.6, 16.7)])  # lines 60-63
add_polygon(sketch10, [(-14.6, 16.7), (-14.6, 6.7), (-12.6, 6.7), (-12.6, 16.7)])  # lines 64-67
add_polygon(sketch10, [(-9.6, 16.7), (-9.6, 6.7), (-7.6, 6.7), (-7.6, 16.7)])  # lines 68-71
add_polygon(sketch10, [(-4.6, 16.7), (-4.6, 6.7), (-2.6, 6.7), (-2.6, 16.7)])  # lines 72-75
add_polygon(sketch10, [(0.4, 16.7), (0.4, 6.7), (2.4, 6.7), (2.4, 16.7)])  # lines 76-79
sketch10.addConstraint(Sketcher.Constraint("Vertical", 0))
sketch10.addConstraint(Sketcher.Constraint("Horizontal", 1))
sketch10.addConstraint(Sketcher.Constraint("Vertical", 2))
sketch10.addConstraint(Sketcher.Constraint("Horizontal", 3))
sketch10.addConstraint(Sketcher.Constraint("Vertical", 4))
sketch10.addConstraint(Sketcher.Constraint("Horizontal", 5))
sketch10.addConstraint(Sketcher.Constraint("Vertical", 6))
sketch10.addConstraint(Sketcher.Constraint("Horizontal", 7))
sketch10.addConstraint(Sketcher.Constraint("Vertical", 8))
sketch10.addConstraint(Sketcher.Constraint("Horizontal", 9))
sketch10.addConstraint(Sketcher.Constraint("Vertical", 10))
sketch10.addConstraint(Sketcher.Constraint("Horizontal", 11))
sketch10.addConstraint(Sketcher.Constraint("Vertical", 12))
sketch10.addConstraint(Sketcher.Constraint("Horizontal", 13))
sketch10.addConstraint(Sketcher.Constraint("Vertical", 14))
sketch10.addConstraint(Sketcher.Constraint("Horizontal", 15))
sketch10.addConstraint(Sketcher.Constraint("Vertical", 16))
sketch10.addConstraint(Sketcher.Constraint("Horizontal", 17))
sketch10.addConstraint(Sketcher.Constraint("Vertical", 18))
sketch10.addConstraint(Sketcher.Constraint("Horizontal", 19))
sketch10.addConstraint(Sketcher.Constraint("Vertical", 20))
sketch10.addConstraint(Sketcher.Constraint("Horizontal", 21))
sketch10.addConstraint(Sketcher.Constraint("Vertical", 22))
sketch10.addConstraint(Sketcher.Constraint("Horizontal", 23))
sketch10.addConstraint(Sketcher.Constraint("Vertical", 24))
sketch10.addConstraint(Sketcher.Constraint("Horizontal", 25))
sketch10.addConstraint(Sketcher.Constraint("Vertical", 26))
sketch10.addConstraint(Sketcher.Constraint("Horizontal", 27))
sketch10.addConstraint(Sketcher.Constraint("Vertical", 28))
sketch10.addConstraint(Sketcher.Constraint("Horizontal", 29))
sketch10.addConstraint(Sketcher.Constraint("Vertical", 30))
sketch10.addConstraint(Sketcher.Constraint("Horizontal", 31))
sketch10.addConstraint(Sketcher.Constraint("Vertical", 32))
sketch10.addConstraint(Sketcher.Constraint("Horizontal", 33))
sketch10.addConstraint(Sketcher.Constraint("Vertical", 34))
sketch10.addConstraint(Sketcher.Constraint("Horizontal", 35))
sketch10.addConstraint(Sketcher.Constraint("Vertical", 36))
sketch10.addConstraint(Sketcher.Constraint("Horizontal", 37))
sketch10.addConstraint(Sketcher.Constraint("Vertical", 38))
sketch10.addConstraint(Sketcher.Constraint("Horizontal", 39))
sketch10.addConstraint(Sketcher.Constraint("Vertical", 40))
sketch10.addConstraint(Sketcher.Constraint("Horizontal", 41))
sketch10.addConstraint(Sketcher.Constraint("Vertical", 42))
sketch10.addConstraint(Sketcher.Constraint("Horizontal", 43))
sketch10.addConstraint(Sketcher.Constraint("Vertical", 44))
sketch10.addConstraint(Sketcher.Constraint("Horizontal", 45))
sketch10.addConstraint(Sketcher.Constraint("Vertical", 46))
sketch10.addConstraint(Sketcher.Constraint("Horizontal", 47))
sketch10.addConstraint(Sketcher.Constraint("Vertical", 48))
sketch10.addConstraint(Sketcher.Constraint("Horizontal", 49))
sketch10.addConstraint(Sketcher.Constraint("Vertical", 50))
sketch10.addConstraint(Sketcher.Constraint("Horizontal", 51))
sketch10.addConstraint(Sketcher.Constraint("Vertical", 52))
sketch10.addConstraint(Sketcher.Constraint("Horizontal", 53))
sketch10.addConstraint(Sketcher.Constraint("Vertical", 54))
sketch10.addConstraint(Sketcher.Constraint("Horizontal", 55))
sketch10.addConstraint(Sketcher.Constraint("Vertical", 56))
sketch10.addConstraint(Sketcher.Constraint("Horizontal", 57))
sketch10.addConstraint(Sketcher.Constraint("Vertical", 58))
sketch10.addConstraint(Sketcher.Constraint("Horizontal", 59))
sketch10.addConstraint(Sketcher.Constraint("Vertical", 60))
sketch10.addConstraint(Sketcher.Constraint("Horizontal", 61))
sketch10.addConstraint(Sketcher.Constraint("Vertical", 62))
sketch10.addConstraint(Sketcher.Constraint("Horizontal", 63))
sketch10.addConstraint(Sketcher.Constraint("Vertical", 64))
sketch10.addConstraint(Sketcher.Constraint("Horizontal", 65))
sketch10.addConstraint(Sketcher.Constraint("Vertical", 66))
sketch10.addConstraint(Sketcher.Constraint("Horizontal", 67))
sketch10.addConstraint(Sketcher.Constraint("Vertical", 68))
sketch10.addConstraint(Sketcher.Constraint("Horizontal", 69))
sketch10.addConstraint(Sketcher.Constraint("Vertical", 70))
sketch10.addConstraint(Sketcher.Constraint("Horizontal", 71))
sketch10.addConstraint(Sketcher.Constraint("Vertical", 72))
sketch10.addConstraint(Sketcher.Constraint("Horizontal", 73))
sketch10.addConstraint(Sketcher.Constraint("Vertical", 74))
sketch10.addConstraint(Sketcher.Constraint("Horizontal", 75))
sketch10.addConstraint(Sketcher.Constraint("Vertical", 76))
sketch10.addConstraint(Sketcher.Constraint("Horizontal", 77))
sketch10.addConstraint(Sketcher.Constraint("Vertical", 78))
sketch10.addConstraint(Sketcher.Constraint("Horizontal", 79))
sketch10.addConstraint(Sketcher.Constraint("Horizontal", 1, 2, 4, 2))
sketch10.addConstraint(Sketcher.Constraint("Horizontal", 3, 2, 6, 2))
sketch10.addConstraint(Sketcher.Constraint("Horizontal", 5, 2, 8, 2))
sketch10.addConstraint(Sketcher.Constraint("Horizontal", 7, 2, 10, 2))
sketch10.addConstraint(Sketcher.Constraint("Horizontal", 9, 2, 12, 2))
sketch10.addConstraint(Sketcher.Constraint("Horizontal", 11, 2, 14, 2))
sketch10.addConstraint(Sketcher.Constraint("Horizontal", 13, 2, 16, 2))
sketch10.addConstraint(Sketcher.Constraint("Horizontal", 15, 2, 18, 2))
sketch10.addConstraint(Sketcher.Constraint("Horizontal", 17, 2, 20, 2))
sketch10.addConstraint(Sketcher.Constraint("Horizontal", 19, 2, 22, 2))
sketch10.addConstraint(Sketcher.Constraint("Horizontal", 21, 2, 24, 2))
sketch10.addConstraint(Sketcher.Constraint("Horizontal", 23, 2, 26, 2))
sketch10.addConstraint(Sketcher.Constraint("Horizontal", 25, 2, 28, 2))
sketch10.addConstraint(Sketcher.Constraint("Horizontal", 27, 2, 30, 2))
sketch10.addConstraint(Sketcher.Constraint("Horizontal", 29, 2, 32, 2))
sketch10.addConstraint(Sketcher.Constraint("Horizontal", 31, 2, 34, 2))
sketch10.addConstraint(Sketcher.Constraint("Horizontal", 33, 2, 36, 2))
sketch10.addConstraint(Sketcher.Constraint("Horizontal", 35, 2, 38, 2))
sketch10.addConstraint(Sketcher.Constraint("Horizontal", 41, 2, 44, 2))
sketch10.addConstraint(Sketcher.Constraint("Horizontal", 43, 2, 46, 2))
sketch10.addConstraint(Sketcher.Constraint("Horizontal", 45, 2, 48, 2))
sketch10.addConstraint(Sketcher.Constraint("Horizontal", 47, 2, 50, 2))
sketch10.addConstraint(Sketcher.Constraint("Horizontal", 49, 2, 52, 2))
sketch10.addConstraint(Sketcher.Constraint("Horizontal", 51, 2, 54, 2))
sketch10.addConstraint(Sketcher.Constraint("Horizontal", 53, 2, 56, 2))
sketch10.addConstraint(Sketcher.Constraint("Horizontal", 55, 2, 58, 2))
sketch10.addConstraint(Sketcher.Constraint("Horizontal", 57, 2, 60, 2))
sketch10.addConstraint(Sketcher.Constraint("Horizontal", 59, 2, 62, 2))
sketch10.addConstraint(Sketcher.Constraint("Horizontal", 61, 2, 64, 2))
sketch10.addConstraint(Sketcher.Constraint("Horizontal", 63, 2, 66, 2))
sketch10.addConstraint(Sketcher.Constraint("Horizontal", 65, 2, 68, 2))
sketch10.addConstraint(Sketcher.Constraint("Horizontal", 67, 2, 70, 2))
sketch10.addConstraint(Sketcher.Constraint("Horizontal", 69, 2, 72, 2))
sketch10.addConstraint(Sketcher.Constraint("Horizontal", 71, 2, 74, 2))
sketch10.addConstraint(Sketcher.Constraint("Horizontal", 73, 2, 76, 2))
sketch10.addConstraint(Sketcher.Constraint("Horizontal", 75, 2, 78, 2))
sketch10.addConstraint(Sketcher.Constraint("Vertical", 3, 2, 40, 2))
sketch10.addConstraint(Sketcher.Constraint("Vertical", 2, 2, 41, 2))
sketch10.addConstraint(Sketcher.Constraint("Vertical", 7, 2, 44, 2))
sketch10.addConstraint(Sketcher.Constraint("Vertical", 6, 2, 45, 2))
sketch10.addConstraint(Sketcher.Constraint("Vertical", 11, 2, 48, 2))
sketch10.addConstraint(Sketcher.Constraint("Vertical", 10, 2, 49, 2))
sketch10.addConstraint(Sketcher.Constraint("Vertical", 15, 2, 52, 2))
sketch10.addConstraint(Sketcher.Constraint("Vertical", 14, 2, 53, 2))
sketch10.addConstraint(Sketcher.Constraint("Vertical", 19, 2, 56, 2))
sketch10.addConstraint(Sketcher.Constraint("Vertical", 18, 2, 57, 2))
sketch10.addConstraint(Sketcher.Constraint("Vertical", 23, 2, 60, 2))
sketch10.addConstraint(Sketcher.Constraint("Vertical", 22, 2, 61, 2))
sketch10.addConstraint(Sketcher.Constraint("Vertical", 27, 2, 64, 2))
sketch10.addConstraint(Sketcher.Constraint("Vertical", 26, 2, 65, 2))
sketch10.addConstraint(Sketcher.Constraint("Vertical", 31, 2, 68, 2))
sketch10.addConstraint(Sketcher.Constraint("Vertical", 30, 2, 69, 2))
sketch10.addConstraint(Sketcher.Constraint("Vertical", 35, 2, 72, 2))
sketch10.addConstraint(Sketcher.Constraint("Vertical", 34, 2, 73, 2))
sketch10.addConstraint(Sketcher.Constraint("Vertical", 39, 2, 76, 2))
sketch10.addConstraint(Sketcher.Constraint("Vertical", 38, 2, 77, 2))
sketch10.addConstraint(Sketcher.Constraint("Equal", 3, 5))
sketch10.addConstraint(Sketcher.Constraint("Equal", 7, 9))
sketch10.addConstraint(Sketcher.Constraint("Equal", 11, 13))
sketch10.addConstraint(Sketcher.Constraint("Equal", 15, 17))
sketch10.addConstraint(Sketcher.Constraint("Equal", 19, 21))
sketch10.addConstraint(Sketcher.Constraint("Equal", 23, 25))
sketch10.addConstraint(Sketcher.Constraint("Equal", 27, 29))
sketch10.addConstraint(Sketcher.Constraint("Equal", 31, 33))
sketch10.addConstraint(Sketcher.Constraint("Equal", 35, 37))
sketch10.addConstraint(Sketcher.Constraint("Equal", 38, 40))
sketch10.addConstraint(Sketcher.Constraint("DistanceX", 1, 1, 1, 2, 2.0))
sketch10.addConstraint(Sketcher.Constraint("DistanceY", 0, 2, 0, 1, 10.0))
sketch10.addConstraint(Sketcher.Constraint("DistanceX", 0, 2, -1, 1, 44.627773))
sketch10.addConstraint(Sketcher.Constraint("DistanceY", 0, 2, -1, 1, 31.256642))
sketch10.addConstraint(Sketcher.Constraint("DistanceX", 4, 2, -1, 1, 39.627773))
sketch10.addConstraint(Sketcher.Constraint("DistanceX", 8, 2, -1, 1, 34.627773))
sketch10.addConstraint(Sketcher.Constraint("DistanceX", 12, 2, -1, 1, 29.627773))
sketch10.addConstraint(Sketcher.Constraint("DistanceX", 16, 2, -1, 1, 24.627773))
sketch10.addConstraint(Sketcher.Constraint("DistanceX", 20, 2, -1, 1, 19.627773))
sketch10.addConstraint(Sketcher.Constraint("DistanceX", 24, 2, -1, 1, 14.627773))
sketch10.addConstraint(Sketcher.Constraint("DistanceX", 28, 2, -1, 1, 9.627773))
sketch10.addConstraint(Sketcher.Constraint("DistanceX", 32, 2, -1, 1, 4.627773))
sketch10.addConstraint(Sketcher.Constraint("DistanceX", -1, 1, 36, 2, 0.372227))
sketch10.addConstraint(Sketcher.Constraint("DistanceY", -1, 1, 40, 2, 6.743358))
pocket4 = body2.newObject("PartDesign::Pocket", "Pocket003")
pocket4.Profile = sketch10
pocket4.Length = 40
pocket4.Reversed = True

# Sketch on XY plane
sketch11 = body2.newObject("Sketcher::SketchObject", "Sketch010")
sketch11.AttachmentSupport = (doc.getObject("XY_Plane001"), [""])
sketch11.MapMode = "FlatFace"
sketch11.AttachmentOffset = App.Placement(Vector(0, 0, 32), App.Rotation())
add_polygon(sketch11, [(20, 21), (-51, 21), (-51, 15), (-58, 15), (-58, -27), (-51, -27), (-51, -33), (20, -33), (20, -27), (26, -27), (26, 15), (20, 15)])  # lines 0-11
sketch11.addConstraint(Sketcher.Constraint("Horizontal", 0))
sketch11.addConstraint(Sketcher.Constraint("Vertical", 1))
sketch11.addConstraint(Sketcher.Constraint("Horizontal", 2))
sketch11.addConstraint(Sketcher.Constraint("Vertical", 3))
sketch11.addConstraint(Sketcher.Constraint("Horizontal", 4))
sketch11.addConstraint(Sketcher.Constraint("Vertical", 5))
sketch11.addConstraint(Sketcher.Constraint("Horizontal", 6))
sketch11.addConstraint(Sketcher.Constraint("Vertical", 7))
sketch11.addConstraint(Sketcher.Constraint("Horizontal", 8))
sketch11.addConstraint(Sketcher.Constraint("Vertical", 9))
sketch11.addConstraint(Sketcher.Constraint("Horizontal", 10))
sketch11.addConstraint(Sketcher.Constraint("Vertical", 11))
sketch11.addConstraint(Sketcher.Constraint("Horizontal", 2, 2, 9, 2))
sketch11.addConstraint(Sketcher.Constraint("Vertical", 1, 2, 4, 2))
sketch11.addConstraint(Sketcher.Constraint("Vertical", 7, 2, 10, 2))
sketch11.addConstraint(Sketcher.Constraint("Equal", 1, 7))
sketch11.addConstraint(Sketcher.Constraint("DistanceY", 5, 2, 5, 1, 6.111421))
sketch11.addConstraint(Sketcher.Constraint("DistanceX", 0, 2, 0, 1, 71.765525))
sketch11.addConstraint(Sketcher.Constraint("DistanceX", 2, 2, 2, 1, 6.111417))
sketch11.addConstraint(Sketcher.Constraint("DistanceX", 8, 1, 8, 2, 5.936807))
sketch11.addConstraint(Sketcher.Constraint("DistanceY", 1, 2, 1, 1, 5.762195))
sketch11.addConstraint(Sketcher.Constraint("DistanceY", 3, 2, 3, 1, 41.732263))
sketch11.addConstraint(Sketcher.Constraint("DistanceX", 0, 2, -1, 1, 51.423229))
sketch11.addConstraint(Sketcher.Constraint("DistanceY", 3, 2, -1, 1, 26.97755))
pocket5 = body2.newObject("PartDesign::Pocket", "Pocket004")
pocket5.Profile = sketch11
pocket5.Length = 6
pocket5.Reversed = True

# Sketch on XY plane
sketch12 = body2.newObject("Sketcher::SketchObject", "Sketch011")
sketch12.AttachmentSupport = (doc.getObject("XY_Plane001"), [""])
sketch12.MapMode = "FlatFace"
sketch12.AttachmentOffset = App.Placement(Vector(0, 0, 41), App.Rotation())
sketch12.addGeometry(Part.Circle(Vector(-56.1, 19.2, 0), Vector(0, 0, 1), 2.5), False)
sketch12.addGeometry(Part.Circle(Vector(24.9, 19.2, 0), Vector(0, 0, 1), 2.5), False)
sketch12.addGeometry(Part.Circle(Vector(24.9, -31.8, 0), Vector(0, 0, 1), 2.5), False)
sketch12.addGeometry(Part.Circle(Vector(-56.1, -31.8, 0), Vector(0, 0, 1), 2.5), False)
sketch12.addConstraint(Sketcher.Constraint("Equal", 0, 1))
sketch12.addConstraint(Sketcher.Constraint("Equal", 1, 2))
sketch12.addConstraint(Sketcher.Constraint("Equal", 2, 3))
sketch12.addConstraint(Sketcher.Constraint("Horizontal", 0, 3, 1, 3))
sketch12.addConstraint(Sketcher.Constraint("Horizontal", 2, 3, 3, 3))
sketch12.addConstraint(Sketcher.Constraint("Vertical", 1, 3, 2, 3))
sketch12.addConstraint(Sketcher.Constraint("Vertical", 0, 3, 3, 3))
sketch12.addConstraint(Sketcher.Constraint("Diameter", 0, 5.0))
sketch12.addConstraint(Sketcher.Constraint("DistanceX", 0, 3, 1, 3, 81.0))
sketch12.addConstraint(Sketcher.Constraint("DistanceY", 2, 3, 1, 3, 51.0))
sketch12.addConstraint(Sketcher.Constraint("DistanceX", 0, 3, -1, 1, 56.127773))
sketch12.addConstraint(Sketcher.Constraint("DistanceY", -1, 1, 0, 3, 19.243358))
pocket6 = body2.newObject("PartDesign::Pocket", "Pocket005")
pocket6.Profile = sketch12
pocket6.Length = 5

# Sketch on XY plane
sketch13 = body2.newObject("Sketcher::SketchObject", "Sketch012")
sketch13.AttachmentSupport = (doc.getObject("XY_Plane001"), [""])
sketch13.MapMode = "FlatFace"
sketch13.AttachmentOffset = App.Placement(Vector(0, 0, 41), App.Rotation())
sketch13.addGeometry(Part.Circle(Vector(-56.1, 19.2, 0), Vector(0, 0, 1), 0.5), False)
sketch13.addGeometry(Part.Circle(Vector(24.9, 19.2, 0), Vector(0, 0, 1), 0.5), False)
sketch13.addGeometry(Part.Circle(Vector(24.9, -31.8, 0), Vector(0, 0, 1), 0.5), False)
sketch13.addGeometry(Part.Circle(Vector(-56.1, -31.8, 0), Vector(0, 0, 1), 0.5), False)
sketch13.addConstraint(Sketcher.Constraint("Equal", 0, 1))
sketch13.addConstraint(Sketcher.Constraint("Equal", 1, 2))
sketch13.addConstraint(Sketcher.Constraint("Equal", 2, 3))
sketch13.addConstraint(Sketcher.Constraint("Horizontal", 0, 3, 1, 3))
sketch13.addConstraint(Sketcher.Constraint("Horizontal", 2, 3, 3, 3))
sketch13.addConstraint(Sketcher.Constraint("Vertical", 1, 3, 2, 3))
sketch13.addConstraint(Sketcher.Constraint("Vertical", 0, 3, 3, 3))
sketch13.addConstraint(Sketcher.Constraint("Diameter", 0, 1.0))
sketch13.addConstraint(Sketcher.Constraint("DistanceX", 0, 3, 1, 3, 81.0))
sketch13.addConstraint(Sketcher.Constraint("DistanceY", 2, 3, 1, 3, 51.0))
sketch13.addConstraint(Sketcher.Constraint("DistanceX", 0, 3, -1, 1, 56.127773))
sketch13.addConstraint(Sketcher.Constraint("DistanceY", -1, 1, 0, 3, 19.243358))
pocket7 = body2.newObject("PartDesign::Pocket", "Pocket006")
pocket7.Profile = sketch13
pocket7.Length = 10

doc.recompute()
